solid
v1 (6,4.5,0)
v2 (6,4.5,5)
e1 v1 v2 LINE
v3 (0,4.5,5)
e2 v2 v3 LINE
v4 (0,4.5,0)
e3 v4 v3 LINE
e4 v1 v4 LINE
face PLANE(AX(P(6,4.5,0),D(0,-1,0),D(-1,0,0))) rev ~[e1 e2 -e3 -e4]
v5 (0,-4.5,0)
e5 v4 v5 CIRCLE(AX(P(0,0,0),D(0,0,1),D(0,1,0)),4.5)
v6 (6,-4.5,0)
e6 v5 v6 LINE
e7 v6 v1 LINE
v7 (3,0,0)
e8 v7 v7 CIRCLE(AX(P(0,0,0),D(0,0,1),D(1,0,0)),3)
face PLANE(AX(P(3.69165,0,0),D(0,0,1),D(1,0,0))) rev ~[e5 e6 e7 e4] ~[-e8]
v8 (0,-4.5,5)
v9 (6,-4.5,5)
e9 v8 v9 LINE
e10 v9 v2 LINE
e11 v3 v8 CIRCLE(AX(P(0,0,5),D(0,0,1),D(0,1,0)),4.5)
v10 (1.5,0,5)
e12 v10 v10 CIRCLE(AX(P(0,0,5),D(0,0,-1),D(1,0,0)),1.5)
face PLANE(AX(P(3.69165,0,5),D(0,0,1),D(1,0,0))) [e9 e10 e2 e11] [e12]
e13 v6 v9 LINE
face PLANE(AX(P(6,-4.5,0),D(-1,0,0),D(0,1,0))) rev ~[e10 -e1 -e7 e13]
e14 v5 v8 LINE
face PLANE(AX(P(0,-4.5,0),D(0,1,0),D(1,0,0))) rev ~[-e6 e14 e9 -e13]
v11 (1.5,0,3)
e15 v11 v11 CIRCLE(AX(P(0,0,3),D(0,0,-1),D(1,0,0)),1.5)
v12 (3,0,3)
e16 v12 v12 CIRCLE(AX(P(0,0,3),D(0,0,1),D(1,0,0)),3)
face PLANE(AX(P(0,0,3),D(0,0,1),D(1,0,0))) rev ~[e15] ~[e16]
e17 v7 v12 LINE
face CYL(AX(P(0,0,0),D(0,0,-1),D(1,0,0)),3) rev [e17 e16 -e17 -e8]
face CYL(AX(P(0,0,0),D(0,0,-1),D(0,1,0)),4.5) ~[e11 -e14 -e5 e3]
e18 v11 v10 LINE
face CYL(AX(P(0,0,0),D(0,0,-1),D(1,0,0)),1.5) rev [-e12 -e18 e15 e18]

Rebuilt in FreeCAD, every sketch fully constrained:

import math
import FreeCAD as App
import Part
import Sketcher
Q = App.Units.Quantity

doc = App.newDocument("Part")
body = doc.addObject("PartDesign::Body", "Body")

# Sketch on XY plane
sketch1 = body.newObject("Sketcher::SketchObject", "Sketch")
sketch1.AttachmentSupport = (doc.getObject("XY_Plane"), [""])
sketch1.MapMode = "FlatFace"
sketch1.addGeometry([
    Part.LineSegment(App.Vector(0, -4.5, 0), App.Vector(6, -4.5, 0)),
    Part.LineSegment(App.Vector(6, -4.5, 0), App.Vector(6, 4.5, 0)),
    Part.LineSegment(App.Vector(6, 4.5, 0), App.Vector(0, 4.5, 0)),
    Part.ArcOfCircle(Part.Circle(App.Vector(0, 0, 0), App.Vector(0, 0, 1), 4.5), math.radians(90), math.radians(270)),
], False)
sketch1.addConstraint([
    Sketcher.Constraint("Coincident", 0, 2, 1, 1),
    Sketcher.Constraint("Coincident", 1, 2, 2, 1),
    Sketcher.Constraint("Tangent", 2, 2, 3, 1),
    Sketcher.Constraint("Tangent", 3, 2, 0, 1),
    Sketcher.Constraint("Horizontal", 0),
    Sketcher.Constraint("Vertical", 1),
    Sketcher.Constraint("Horizontal", 2),
    Sketcher.Constraint("Coincident", 3, 3, -1, 1),
    Sketcher.Constraint("Radius", 3, Q("4.5 mm")),
    Sketcher.Constraint("DistanceX", 0, 1, 0, 2, Q("6 mm")),
])
pad1 = body.newObject("PartDesign::Pad", "Pad")
pad1.Profile = sketch1
pad1.Length = 5

# Sketch on XY plane
sketch2 = body.newObject("Sketcher::SketchObject", "Sketch001")
sketch2.AttachmentSupport = (doc.getObject("XY_Plane"), [""])
sketch2.MapMode = "FlatFace"
sketch2.addGeometry(Part.Circle(App.Vector(0, 0, 0), App.Vector(0, 0, 1), 1.5), False)
sketch2.addConstraint([
    Sketcher.Constraint("Coincident", 0, 3, -1, 1),
    Sketcher.Constraint("Diameter", 0, Q("3 mm")),
])
pocket1 = body.newObject("PartDesign::Pocket", "Pocket")
pocket1.Profile = sketch2
pocket1.Length = 18.5
pocket1.Reversed = True

# Sketch on XY plane
sketch3 = body.newObject("Sketcher::SketchObject", "Sketch002")
sketch3.AttachmentSupport = (doc.getObject("XY_Plane"), [""])
sketch3.MapMode = "FlatFace"
sketch3.addGeometry(Part.Circle(App.Vector(0, 0, 0), App.Vector(0, 0, 1), 3), False)
sketch3.addConstraint([
    Sketcher.Constraint("Coincident", 0, 3, -1, 1),
    Sketcher.Constraint("Diameter", 0, Q("6 mm")),
])
pocket2 = body.newObject("PartDesign::Pocket", "Pocket001")
pocket2.Profile = sketch3
pocket2.Length = 3
pocket2.Reversed = True

doc.recompute()
